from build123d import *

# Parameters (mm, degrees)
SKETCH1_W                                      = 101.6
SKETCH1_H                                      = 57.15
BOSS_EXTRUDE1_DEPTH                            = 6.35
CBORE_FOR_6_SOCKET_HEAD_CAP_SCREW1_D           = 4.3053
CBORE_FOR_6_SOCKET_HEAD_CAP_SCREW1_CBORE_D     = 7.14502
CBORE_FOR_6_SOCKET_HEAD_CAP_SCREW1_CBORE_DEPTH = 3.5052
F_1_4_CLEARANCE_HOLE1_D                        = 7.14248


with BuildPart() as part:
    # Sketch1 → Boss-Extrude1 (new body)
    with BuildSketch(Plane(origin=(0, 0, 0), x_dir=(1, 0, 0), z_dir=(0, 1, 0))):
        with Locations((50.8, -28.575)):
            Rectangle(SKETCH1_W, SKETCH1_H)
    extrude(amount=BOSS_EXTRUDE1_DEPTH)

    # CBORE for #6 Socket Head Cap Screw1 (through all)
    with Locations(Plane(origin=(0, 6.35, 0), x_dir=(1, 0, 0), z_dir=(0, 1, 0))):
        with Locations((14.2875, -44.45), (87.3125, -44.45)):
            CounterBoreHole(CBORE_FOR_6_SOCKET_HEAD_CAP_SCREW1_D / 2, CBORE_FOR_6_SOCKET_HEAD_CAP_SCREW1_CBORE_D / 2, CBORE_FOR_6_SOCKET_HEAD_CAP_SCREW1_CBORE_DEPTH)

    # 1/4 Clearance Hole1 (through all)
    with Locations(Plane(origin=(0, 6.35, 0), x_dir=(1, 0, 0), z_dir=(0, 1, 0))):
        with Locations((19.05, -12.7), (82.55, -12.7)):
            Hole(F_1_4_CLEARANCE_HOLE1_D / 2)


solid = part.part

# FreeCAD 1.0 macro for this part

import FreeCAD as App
import Part
import Sketcher
Q = App.Units.Quantity

doc = App.newDocument("Part")
body = doc.addObject("PartDesign::Body", "Body")

sketch1 = body.newObject("Sketcher::SketchObject", "Sketch")
sketch1.AttachmentSupport = (doc.getObject("XZ_Plane"), [""])
sketch1.MapMode = "FlatFace"
sketch1.addGeometry([
    Part.LineSegment(App.Vector(0, 0, 0), App.Vector(0, 57, 0)),
    Part.LineSegment(App.Vector(0, 57, 0), App.Vector(102, 57, 0)),
    Part.LineSegment(App.Vector(102, 57, 0), App.Vector(102, 0, 0)),
    Part.LineSegment(App.Vector(102, 0, 0), App.Vector(0, 0, 0)),
], False)
sketch1.addConstraint([
    Sketcher.Constraint("Coincident", 0, 2, 1, 1),
    Sketcher.Constraint("Coincident", 1, 2, 2, 1),
    Sketcher.Constraint("Coincident", 2, 2, 3, 1),
    Sketcher.Constraint("Coincident", 3, 2, 0, 1),
    Sketcher.Constraint("Vertical", 0),
    Sketcher.Constraint("Horizontal", 1),
    Sketcher.Constraint("Vertical", 2),
    Sketcher.Constraint("Horizontal", 3),
    Sketcher.Constraint("Coincident", 3, 2, -1, 1),
    Sketcher.Constraint("DistanceX", 1, 1, 1, 2, Q("4 in")),
    Sketcher.Constraint("DistanceY", 0, 1, 0, 2, Q("2.25 in")),
])
pad1 = body.newObject("PartDesign::Pad", "Pad")
pad1.Profile = sketch1
pad1.Length = Q("0.25 in")
pad1.Reversed = True

sketch2 = body.newObject("Sketcher::SketchObject", "Sketch001")
sketch2.AttachmentSupport = (doc.getObject("XZ_Plane"), [""])
sketch2.MapMode = "FlatFace"
sketch2.AttachmentOffset = App.Placement(App.Vector(0, 0, -0.25 * 25.4), App.Rotation())
sketch2.addGeometry([
    Part.Circle(App.Vector(14.3, 44.5, 0), App.Vector(0, 0, 1), 2.2),
    Part.Circle(App.Vector(87.3, 44.5, 0), App.Vector(0, 0, 1), 2.2),
], False)
sketch2.addConstraint([
    Sketcher.Constraint("Equal", 0, 1),
    Sketcher.Constraint("Horizontal", 0, 3, 1, 3),
    Sketcher.Constraint("Diameter", 0, Q("0.1695 in")),
    Sketcher.Constraint("DistanceY", -1, 1, 0, 3, Q("1.75 in")),
    Sketcher.Constraint("DistanceX", -1, 1, 0, 3, Q("0.5625 in")),
    Sketcher.Constraint("DistanceX", -1, 1, 1, 3, Q("3.4375 in")),
])
doc.recompute()
hole = body.newObject("PartDesign::Hole", "Hole")
hole.Profile = sketch2
hole.ThreadType = "None"
hole.Diameter = Q("0.1695 in")
hole.DepthType = "ThroughAll"
hole.HoleCutType = "Counterbore"
hole.HoleCutDiameter = Q("0.2813 in")
hole.HoleCutDepth = Q("0.138 in")
hole.Reversed = True

sketch3 = body.newObject("Sketcher::SketchObject", "Sketch002")
sketch3.AttachmentSupport = (doc.getObject("XZ_Plane"), [""])
sketch3.MapMode = "FlatFace"
sketch3.AttachmentOffset = App.Placement(App.Vector(0, 0, -0.25 * 25.4), App.Rotation())
sketch3.addGeometry([
    Part.Circle(App.Vector(19.1, 12.7, 0), App.Vector(0, 0, 1), 3.6),
    Part.Circle(App.Vector(82.5, 12.7, 0), App.Vector(0, 0, 1), 3.6),
], False)
sketch3.addConstraint([
    Sketcher.Constraint("Equal", 0, 1),
    Sketcher.Constraint("Horizontal", 0, 3, 1, 3),
    Sketcher.Constraint("Diameter", 0, Q("0.2812 in")),
    Sketcher.Constraint("DistanceY", -1, 1, 0, 3, Q("0.5 in")),
    Sketcher.Constraint("DistanceX", 0, 3, 1, 3, Q("2.5 in")),
    Sketcher.Constraint("DistanceX", -1, 1, 0, 3, Q("0.75 in")),
])
doc.recompute()
hole2 = body.newObject("PartDesign::Hole", "Hole001")
hole2.Profile = sketch3
hole2.ThreadType = "None"
hole2.Diameter = Q("0.2812 in")
hole2.DepthType = "ThroughAll"
hole2.Reversed = True

doc.recompute()
